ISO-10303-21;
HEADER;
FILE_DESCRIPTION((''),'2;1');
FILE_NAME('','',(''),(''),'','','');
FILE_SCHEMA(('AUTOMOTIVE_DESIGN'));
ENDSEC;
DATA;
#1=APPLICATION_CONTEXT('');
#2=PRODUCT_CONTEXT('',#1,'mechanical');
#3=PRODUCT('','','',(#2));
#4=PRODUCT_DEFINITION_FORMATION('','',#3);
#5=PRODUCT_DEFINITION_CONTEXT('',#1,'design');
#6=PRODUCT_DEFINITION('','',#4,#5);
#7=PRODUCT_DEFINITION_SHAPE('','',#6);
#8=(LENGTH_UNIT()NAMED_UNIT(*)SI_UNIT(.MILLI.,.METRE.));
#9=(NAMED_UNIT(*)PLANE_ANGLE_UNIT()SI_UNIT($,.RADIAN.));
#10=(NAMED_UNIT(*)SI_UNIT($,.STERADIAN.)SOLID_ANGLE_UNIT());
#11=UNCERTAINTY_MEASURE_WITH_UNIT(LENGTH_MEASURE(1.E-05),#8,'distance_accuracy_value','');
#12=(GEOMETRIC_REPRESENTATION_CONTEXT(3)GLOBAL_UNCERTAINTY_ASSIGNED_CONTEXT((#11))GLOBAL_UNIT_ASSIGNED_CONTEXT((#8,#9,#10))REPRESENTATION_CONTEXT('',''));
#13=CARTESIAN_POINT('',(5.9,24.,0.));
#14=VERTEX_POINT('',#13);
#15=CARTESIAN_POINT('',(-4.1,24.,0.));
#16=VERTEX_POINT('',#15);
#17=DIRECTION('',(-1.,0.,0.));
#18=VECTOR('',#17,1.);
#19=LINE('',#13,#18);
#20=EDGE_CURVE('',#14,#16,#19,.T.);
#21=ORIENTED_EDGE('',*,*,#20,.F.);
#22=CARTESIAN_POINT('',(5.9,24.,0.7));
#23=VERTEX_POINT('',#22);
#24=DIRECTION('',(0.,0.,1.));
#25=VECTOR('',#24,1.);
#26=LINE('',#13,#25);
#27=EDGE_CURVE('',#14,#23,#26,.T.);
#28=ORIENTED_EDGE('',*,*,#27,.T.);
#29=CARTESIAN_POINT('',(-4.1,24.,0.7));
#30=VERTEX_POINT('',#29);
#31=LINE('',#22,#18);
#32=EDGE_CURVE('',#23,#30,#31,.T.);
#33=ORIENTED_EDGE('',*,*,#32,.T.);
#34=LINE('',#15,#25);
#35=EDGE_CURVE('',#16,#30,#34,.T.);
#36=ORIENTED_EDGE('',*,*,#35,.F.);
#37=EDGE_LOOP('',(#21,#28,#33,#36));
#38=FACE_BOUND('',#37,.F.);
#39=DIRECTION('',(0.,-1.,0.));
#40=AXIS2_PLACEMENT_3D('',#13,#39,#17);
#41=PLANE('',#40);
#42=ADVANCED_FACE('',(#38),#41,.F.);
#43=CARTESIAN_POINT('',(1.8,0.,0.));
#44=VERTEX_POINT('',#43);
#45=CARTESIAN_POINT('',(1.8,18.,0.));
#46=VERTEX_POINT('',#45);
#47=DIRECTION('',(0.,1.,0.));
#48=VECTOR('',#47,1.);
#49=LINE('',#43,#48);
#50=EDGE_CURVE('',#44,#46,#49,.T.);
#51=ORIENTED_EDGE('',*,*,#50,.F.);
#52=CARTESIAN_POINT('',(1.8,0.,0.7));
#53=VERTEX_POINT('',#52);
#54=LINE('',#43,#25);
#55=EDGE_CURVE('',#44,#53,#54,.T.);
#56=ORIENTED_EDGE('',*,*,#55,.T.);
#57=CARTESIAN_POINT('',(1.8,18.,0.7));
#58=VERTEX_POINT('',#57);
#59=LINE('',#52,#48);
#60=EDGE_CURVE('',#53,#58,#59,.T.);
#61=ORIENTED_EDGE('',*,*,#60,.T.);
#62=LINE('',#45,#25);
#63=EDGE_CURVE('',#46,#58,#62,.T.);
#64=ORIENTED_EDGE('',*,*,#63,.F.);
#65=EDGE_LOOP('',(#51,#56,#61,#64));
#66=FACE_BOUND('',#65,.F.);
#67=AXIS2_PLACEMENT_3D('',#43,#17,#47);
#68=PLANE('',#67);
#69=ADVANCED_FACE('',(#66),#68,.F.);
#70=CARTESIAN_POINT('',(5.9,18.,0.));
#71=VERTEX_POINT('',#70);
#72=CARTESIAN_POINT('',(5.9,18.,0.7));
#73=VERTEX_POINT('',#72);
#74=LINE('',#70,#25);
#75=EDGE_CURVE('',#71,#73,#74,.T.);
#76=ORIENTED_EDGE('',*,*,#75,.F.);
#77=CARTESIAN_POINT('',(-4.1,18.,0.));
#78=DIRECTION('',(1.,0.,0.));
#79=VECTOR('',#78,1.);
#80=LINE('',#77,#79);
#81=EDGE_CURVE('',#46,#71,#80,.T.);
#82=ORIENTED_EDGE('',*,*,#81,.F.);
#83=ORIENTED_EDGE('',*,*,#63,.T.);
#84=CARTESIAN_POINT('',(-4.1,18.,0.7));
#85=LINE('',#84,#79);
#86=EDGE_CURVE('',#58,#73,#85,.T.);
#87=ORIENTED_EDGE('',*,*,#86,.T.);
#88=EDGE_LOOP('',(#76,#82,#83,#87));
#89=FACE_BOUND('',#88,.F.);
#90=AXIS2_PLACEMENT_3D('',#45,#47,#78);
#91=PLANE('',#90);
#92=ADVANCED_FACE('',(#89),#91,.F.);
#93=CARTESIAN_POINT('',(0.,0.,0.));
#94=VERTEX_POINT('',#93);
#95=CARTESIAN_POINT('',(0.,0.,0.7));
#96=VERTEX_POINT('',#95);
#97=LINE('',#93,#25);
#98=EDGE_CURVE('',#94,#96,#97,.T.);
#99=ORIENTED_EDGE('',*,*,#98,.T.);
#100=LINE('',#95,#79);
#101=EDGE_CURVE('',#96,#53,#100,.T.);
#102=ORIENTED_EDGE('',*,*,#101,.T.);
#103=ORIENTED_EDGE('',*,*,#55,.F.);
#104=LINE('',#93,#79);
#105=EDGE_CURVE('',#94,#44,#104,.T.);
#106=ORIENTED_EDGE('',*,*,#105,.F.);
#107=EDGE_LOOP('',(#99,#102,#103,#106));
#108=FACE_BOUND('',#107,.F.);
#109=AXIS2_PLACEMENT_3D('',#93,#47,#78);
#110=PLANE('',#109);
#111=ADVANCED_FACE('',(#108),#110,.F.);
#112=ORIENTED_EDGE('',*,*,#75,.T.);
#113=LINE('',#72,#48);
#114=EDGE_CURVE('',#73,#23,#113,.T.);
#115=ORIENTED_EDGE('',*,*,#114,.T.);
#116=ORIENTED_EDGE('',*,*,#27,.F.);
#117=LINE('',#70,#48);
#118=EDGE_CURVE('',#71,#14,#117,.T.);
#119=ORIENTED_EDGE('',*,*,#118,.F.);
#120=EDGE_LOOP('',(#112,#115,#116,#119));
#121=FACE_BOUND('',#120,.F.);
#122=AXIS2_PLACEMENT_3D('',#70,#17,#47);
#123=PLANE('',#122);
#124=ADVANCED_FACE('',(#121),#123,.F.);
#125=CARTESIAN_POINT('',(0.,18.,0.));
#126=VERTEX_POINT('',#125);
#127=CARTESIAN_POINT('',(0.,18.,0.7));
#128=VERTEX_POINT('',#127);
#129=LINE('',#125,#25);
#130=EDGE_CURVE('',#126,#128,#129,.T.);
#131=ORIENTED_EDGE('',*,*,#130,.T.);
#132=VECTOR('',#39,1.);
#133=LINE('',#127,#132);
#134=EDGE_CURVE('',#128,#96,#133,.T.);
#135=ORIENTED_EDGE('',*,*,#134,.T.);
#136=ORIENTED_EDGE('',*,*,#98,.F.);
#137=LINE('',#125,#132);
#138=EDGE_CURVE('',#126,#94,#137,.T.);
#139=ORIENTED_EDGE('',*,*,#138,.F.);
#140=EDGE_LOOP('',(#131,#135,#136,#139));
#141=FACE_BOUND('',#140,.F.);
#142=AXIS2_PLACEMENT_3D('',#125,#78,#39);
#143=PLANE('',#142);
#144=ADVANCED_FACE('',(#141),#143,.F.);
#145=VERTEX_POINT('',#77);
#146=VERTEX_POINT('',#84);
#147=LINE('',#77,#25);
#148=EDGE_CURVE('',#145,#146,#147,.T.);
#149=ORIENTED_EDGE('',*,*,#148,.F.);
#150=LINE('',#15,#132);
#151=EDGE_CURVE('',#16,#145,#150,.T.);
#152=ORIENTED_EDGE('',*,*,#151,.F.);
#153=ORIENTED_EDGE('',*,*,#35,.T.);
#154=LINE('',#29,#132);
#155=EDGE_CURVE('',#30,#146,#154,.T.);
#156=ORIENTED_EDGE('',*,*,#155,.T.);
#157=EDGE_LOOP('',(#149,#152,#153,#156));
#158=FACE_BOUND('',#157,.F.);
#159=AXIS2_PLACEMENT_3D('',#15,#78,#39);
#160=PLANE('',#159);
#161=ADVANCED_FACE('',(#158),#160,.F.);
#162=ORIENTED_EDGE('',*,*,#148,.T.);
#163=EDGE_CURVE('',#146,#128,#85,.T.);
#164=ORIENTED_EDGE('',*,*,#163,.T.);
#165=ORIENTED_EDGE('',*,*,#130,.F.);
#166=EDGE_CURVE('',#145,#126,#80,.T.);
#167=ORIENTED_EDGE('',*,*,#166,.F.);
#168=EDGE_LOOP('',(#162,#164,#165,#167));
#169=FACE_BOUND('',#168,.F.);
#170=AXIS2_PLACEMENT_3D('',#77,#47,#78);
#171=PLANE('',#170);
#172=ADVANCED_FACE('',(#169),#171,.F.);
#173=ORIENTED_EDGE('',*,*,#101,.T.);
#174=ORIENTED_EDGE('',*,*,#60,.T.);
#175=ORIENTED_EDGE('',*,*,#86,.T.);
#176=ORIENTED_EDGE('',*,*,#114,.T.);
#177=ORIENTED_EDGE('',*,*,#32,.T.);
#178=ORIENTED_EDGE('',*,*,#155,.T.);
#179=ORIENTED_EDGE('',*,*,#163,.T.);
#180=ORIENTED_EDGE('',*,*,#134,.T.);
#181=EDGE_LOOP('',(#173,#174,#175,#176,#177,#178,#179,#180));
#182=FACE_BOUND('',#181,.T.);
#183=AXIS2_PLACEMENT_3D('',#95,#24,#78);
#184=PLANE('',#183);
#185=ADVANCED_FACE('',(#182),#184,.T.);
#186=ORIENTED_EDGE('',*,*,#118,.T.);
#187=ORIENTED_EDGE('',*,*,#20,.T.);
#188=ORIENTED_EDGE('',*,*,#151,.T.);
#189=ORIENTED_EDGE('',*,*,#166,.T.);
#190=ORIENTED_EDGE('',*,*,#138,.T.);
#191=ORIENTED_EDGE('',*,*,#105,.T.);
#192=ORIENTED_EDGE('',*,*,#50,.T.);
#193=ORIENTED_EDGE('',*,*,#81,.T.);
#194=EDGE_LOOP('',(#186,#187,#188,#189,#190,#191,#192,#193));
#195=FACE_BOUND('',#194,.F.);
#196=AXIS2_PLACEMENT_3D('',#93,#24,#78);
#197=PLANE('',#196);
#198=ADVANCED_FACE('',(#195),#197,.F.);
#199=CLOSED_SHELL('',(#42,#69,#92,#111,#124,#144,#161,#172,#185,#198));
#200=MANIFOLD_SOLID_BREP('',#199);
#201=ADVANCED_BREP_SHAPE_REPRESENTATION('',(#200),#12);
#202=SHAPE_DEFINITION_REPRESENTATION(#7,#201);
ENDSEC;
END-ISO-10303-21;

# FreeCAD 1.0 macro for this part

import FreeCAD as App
import Part
import Sketcher
from FreeCAD import Vector
Q = App.Units.Quantity

doc = App.newDocument("Part")
body = doc.addObject("PartDesign::Body", "Body")

# Sketch on XY plane
sketch1 = body.newObject("Sketcher::SketchObject", "Sketch")
sketch1.AttachmentSupport = (doc.getObject("XY_Plane"), [""])
sketch1.MapMode = "FlatFace"
sketch1.addGeometry([
    Part.LineSegment(Vector(0, 18, 0), Vector(0, 0, 0)),  # 0
    Part.LineSegment(Vector(0, 0, 0), Vector(1.8, 0, 0)),  # 1
    Part.LineSegment(Vector(1.8, 0, 0), Vector(1.8, 18, 0)),  # 2
    Part.LineSegment(Vector(1.8, 18, 0), Vector(5.9, 18, 0)),  # 3
    Part.LineSegment(Vector(5.9, 18, 0), Vector(5.9, 24, 0)),  # 4
    Part.LineSegment(Vector(5.9, 24, 0), Vector(-4.1, 24, 0)),  # 5
    Part.LineSegment(Vector(-4.1, 24, 0), Vector(-4.1, 18, 0)),  # 6
    Part.LineSegment(Vector(-4.1, 18, 0), Vector(0, 18, 0)),  # 7
], False)
sketch1.addConstraint([
    Sketcher.Constraint("Coincident", 0, 2, 1, 1),
    Sketcher.Constraint("Coincident", 1, 2, 2, 1),
    Sketcher.Constraint("Coincident", 2, 2, 3, 1),
    Sketcher.Constraint("Coincident", 3, 2, 4, 1),
    Sketcher.Constraint("Coincident", 4, 2, 5, 1),
    Sketcher.Constraint("Coincident", 5, 2, 6, 1),
    Sketcher.Constraint("Coincident", 6, 2, 7, 1),
    Sketcher.Constraint("Coincident", 7, 2, 0, 1),
    Sketcher.Constraint("Vertical", 0),
    Sketcher.Constraint("Horizontal", 1),
    Sketcher.Constraint("Vertical", 2),
    Sketcher.Constraint("Horizontal", 3),
    Sketcher.Constraint("Vertical", 4),
    Sketcher.Constraint("Horizontal", 5),
    Sketcher.Constraint("Vertical", 6),
    Sketcher.Constraint("Horizontal", 7),
    Sketcher.Constraint("Coincident", 0, 2, -1, 1),
    Sketcher.Constraint("Horizontal", 3, 2, 6, 2),
    Sketcher.Constraint("Equal", 3, 7),
    Sketcher.Constraint("DistanceX", 5, 2, 5, 1, Q("10 mm")),
    Sketcher.Constraint("DistanceY", 0, 2, 0, 1, Q("18 mm")),
    Sketcher.Constraint("DistanceY", 4, 1, 4, 2, Q("6 mm")),
    Sketcher.Constraint("DistanceX", 1, 1, 1, 2, Q("1.8 mm")),
])
pad1 = body.newObject("PartDesign::Pad", "Pad")
pad1.Profile = sketch1
pad1.Length = 0.7

doc.recompute()
